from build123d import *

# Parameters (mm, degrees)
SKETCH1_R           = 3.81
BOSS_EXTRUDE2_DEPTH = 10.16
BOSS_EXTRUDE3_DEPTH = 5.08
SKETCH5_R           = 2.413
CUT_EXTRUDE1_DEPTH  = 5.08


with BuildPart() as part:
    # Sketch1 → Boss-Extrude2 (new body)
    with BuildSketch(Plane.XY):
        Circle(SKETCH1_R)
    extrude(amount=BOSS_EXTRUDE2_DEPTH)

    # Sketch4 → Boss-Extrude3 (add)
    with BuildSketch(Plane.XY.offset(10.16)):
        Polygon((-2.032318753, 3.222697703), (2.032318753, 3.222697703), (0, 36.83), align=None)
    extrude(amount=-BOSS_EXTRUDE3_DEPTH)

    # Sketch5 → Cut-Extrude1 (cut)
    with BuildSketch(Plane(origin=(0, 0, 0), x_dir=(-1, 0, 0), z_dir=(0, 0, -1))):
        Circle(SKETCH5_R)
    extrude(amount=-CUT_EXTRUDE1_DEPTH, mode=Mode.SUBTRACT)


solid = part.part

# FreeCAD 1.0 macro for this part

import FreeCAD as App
import Part
import Sketcher

V = App.Vector
Q = App.Units.Quantity


def add_polygon(sketch, points):
    """Adds a closed chain of lines whose ends are joined by coincident constraints."""
    first, n = sketch.GeometryCount, len(points)
    for a, b in zip(points, points[1:] + points[:1]):
        sketch.addGeometry(Part.LineSegment(App.Vector(*a, 0), App.Vector(*b, 0)), False)
    for i in range(n):
        sketch.addConstraint(Sketcher.Constraint("Coincident", first + i, 2, first + (i + 1) % n, 1))

doc = App.newDocument("Part")
body = doc.addObject("PartDesign::Body", "Body")

# Sketch on XY plane
sketch1 = body.newObject("Sketcher::SketchObject", "Sketch")
sketch1.AttachmentSupport = (doc.getObject("XY_Plane"), [""])
sketch1.MapMode = "FlatFace"
sketch1.addGeometry(Part.Circle(V(0, 0, 0), V(0, 0, 1), 3.8), False)
sketch1.addConstraint(Sketcher.Constraint("Coincident", 0, 3, -1, 1))
sketch1.addConstraint(Sketcher.Constraint("Diameter", 0, Q("0.3 in")))
pad1 = body.newObject("PartDesign::Pad", "Pad")
pad1.Profile = sketch1
pad1.Length = Q("0.4 in")

# Sketch on XY plane
sketch2 = body.newObject("Sketcher::SketchObject", "Sketch001")
sketch2.AttachmentSupport = (doc.getObject("XY_Plane"), [""])
sketch2.MapMode = "FlatFace"
sketch2.AttachmentOffset = App.Placement(V(0, 0, 0.4 * 25.4), App.Rotation())
add_polygon(sketch2, [(-2, 3.2), (2, 3.2), (0, 36.8)])  # lines 0-2
sketch2.addConstraint(Sketcher.Constraint("Horizontal", 0))
sketch2.addConstraint(Sketcher.Constraint("PointOnObject", 1, 2, -2))
sketch2.addConstraint(Sketcher.Constraint("Equal", 1, 2))
sketch2.addConstraint(Sketcher.Constraint("DistanceY", -1, 1, 1, 2, Q("1.45 in")))
sketch2.addConstraint(Sketcher.Constraint("DistanceX", 0, 1, 0, 2, Q("4.064638 mm")))
sketch2.addConstraint(Sketcher.Constraint("Distance", 1, Q("33.668696 mm")))
pad2 = body.newObject("PartDesign::Pad", "Pad001")
pad2.Profile = sketch2
pad2.Length = Q("0.2 in")
pad2.Reversed = True

# Sketch on XY plane
sketch3 = body.newObject("Sketcher::SketchObject", "Sketch002")
sketch3.AttachmentSupport = (doc.getObject("XY_Plane"), [""])
sketch3.MapMode = "FlatFace"
sketch3.addGeometry(Part.Circle(V(0, 0, 0), V(0, 0, 1), 2.4), False)
sketch3.addConstraint(Sketcher.Constraint("Coincident", 0, 3, -1, 1))
sketch3.addConstraint(Sketcher.Constraint("Diameter", 0, Q("0.19 in")))
pocket1 = body.newObject("PartDesign::Pocket", "Pocket")
pocket1.Profile = sketch3
pocket1.Length = Q("0.2 in")
pocket1.Reversed = True

doc.recompute()
